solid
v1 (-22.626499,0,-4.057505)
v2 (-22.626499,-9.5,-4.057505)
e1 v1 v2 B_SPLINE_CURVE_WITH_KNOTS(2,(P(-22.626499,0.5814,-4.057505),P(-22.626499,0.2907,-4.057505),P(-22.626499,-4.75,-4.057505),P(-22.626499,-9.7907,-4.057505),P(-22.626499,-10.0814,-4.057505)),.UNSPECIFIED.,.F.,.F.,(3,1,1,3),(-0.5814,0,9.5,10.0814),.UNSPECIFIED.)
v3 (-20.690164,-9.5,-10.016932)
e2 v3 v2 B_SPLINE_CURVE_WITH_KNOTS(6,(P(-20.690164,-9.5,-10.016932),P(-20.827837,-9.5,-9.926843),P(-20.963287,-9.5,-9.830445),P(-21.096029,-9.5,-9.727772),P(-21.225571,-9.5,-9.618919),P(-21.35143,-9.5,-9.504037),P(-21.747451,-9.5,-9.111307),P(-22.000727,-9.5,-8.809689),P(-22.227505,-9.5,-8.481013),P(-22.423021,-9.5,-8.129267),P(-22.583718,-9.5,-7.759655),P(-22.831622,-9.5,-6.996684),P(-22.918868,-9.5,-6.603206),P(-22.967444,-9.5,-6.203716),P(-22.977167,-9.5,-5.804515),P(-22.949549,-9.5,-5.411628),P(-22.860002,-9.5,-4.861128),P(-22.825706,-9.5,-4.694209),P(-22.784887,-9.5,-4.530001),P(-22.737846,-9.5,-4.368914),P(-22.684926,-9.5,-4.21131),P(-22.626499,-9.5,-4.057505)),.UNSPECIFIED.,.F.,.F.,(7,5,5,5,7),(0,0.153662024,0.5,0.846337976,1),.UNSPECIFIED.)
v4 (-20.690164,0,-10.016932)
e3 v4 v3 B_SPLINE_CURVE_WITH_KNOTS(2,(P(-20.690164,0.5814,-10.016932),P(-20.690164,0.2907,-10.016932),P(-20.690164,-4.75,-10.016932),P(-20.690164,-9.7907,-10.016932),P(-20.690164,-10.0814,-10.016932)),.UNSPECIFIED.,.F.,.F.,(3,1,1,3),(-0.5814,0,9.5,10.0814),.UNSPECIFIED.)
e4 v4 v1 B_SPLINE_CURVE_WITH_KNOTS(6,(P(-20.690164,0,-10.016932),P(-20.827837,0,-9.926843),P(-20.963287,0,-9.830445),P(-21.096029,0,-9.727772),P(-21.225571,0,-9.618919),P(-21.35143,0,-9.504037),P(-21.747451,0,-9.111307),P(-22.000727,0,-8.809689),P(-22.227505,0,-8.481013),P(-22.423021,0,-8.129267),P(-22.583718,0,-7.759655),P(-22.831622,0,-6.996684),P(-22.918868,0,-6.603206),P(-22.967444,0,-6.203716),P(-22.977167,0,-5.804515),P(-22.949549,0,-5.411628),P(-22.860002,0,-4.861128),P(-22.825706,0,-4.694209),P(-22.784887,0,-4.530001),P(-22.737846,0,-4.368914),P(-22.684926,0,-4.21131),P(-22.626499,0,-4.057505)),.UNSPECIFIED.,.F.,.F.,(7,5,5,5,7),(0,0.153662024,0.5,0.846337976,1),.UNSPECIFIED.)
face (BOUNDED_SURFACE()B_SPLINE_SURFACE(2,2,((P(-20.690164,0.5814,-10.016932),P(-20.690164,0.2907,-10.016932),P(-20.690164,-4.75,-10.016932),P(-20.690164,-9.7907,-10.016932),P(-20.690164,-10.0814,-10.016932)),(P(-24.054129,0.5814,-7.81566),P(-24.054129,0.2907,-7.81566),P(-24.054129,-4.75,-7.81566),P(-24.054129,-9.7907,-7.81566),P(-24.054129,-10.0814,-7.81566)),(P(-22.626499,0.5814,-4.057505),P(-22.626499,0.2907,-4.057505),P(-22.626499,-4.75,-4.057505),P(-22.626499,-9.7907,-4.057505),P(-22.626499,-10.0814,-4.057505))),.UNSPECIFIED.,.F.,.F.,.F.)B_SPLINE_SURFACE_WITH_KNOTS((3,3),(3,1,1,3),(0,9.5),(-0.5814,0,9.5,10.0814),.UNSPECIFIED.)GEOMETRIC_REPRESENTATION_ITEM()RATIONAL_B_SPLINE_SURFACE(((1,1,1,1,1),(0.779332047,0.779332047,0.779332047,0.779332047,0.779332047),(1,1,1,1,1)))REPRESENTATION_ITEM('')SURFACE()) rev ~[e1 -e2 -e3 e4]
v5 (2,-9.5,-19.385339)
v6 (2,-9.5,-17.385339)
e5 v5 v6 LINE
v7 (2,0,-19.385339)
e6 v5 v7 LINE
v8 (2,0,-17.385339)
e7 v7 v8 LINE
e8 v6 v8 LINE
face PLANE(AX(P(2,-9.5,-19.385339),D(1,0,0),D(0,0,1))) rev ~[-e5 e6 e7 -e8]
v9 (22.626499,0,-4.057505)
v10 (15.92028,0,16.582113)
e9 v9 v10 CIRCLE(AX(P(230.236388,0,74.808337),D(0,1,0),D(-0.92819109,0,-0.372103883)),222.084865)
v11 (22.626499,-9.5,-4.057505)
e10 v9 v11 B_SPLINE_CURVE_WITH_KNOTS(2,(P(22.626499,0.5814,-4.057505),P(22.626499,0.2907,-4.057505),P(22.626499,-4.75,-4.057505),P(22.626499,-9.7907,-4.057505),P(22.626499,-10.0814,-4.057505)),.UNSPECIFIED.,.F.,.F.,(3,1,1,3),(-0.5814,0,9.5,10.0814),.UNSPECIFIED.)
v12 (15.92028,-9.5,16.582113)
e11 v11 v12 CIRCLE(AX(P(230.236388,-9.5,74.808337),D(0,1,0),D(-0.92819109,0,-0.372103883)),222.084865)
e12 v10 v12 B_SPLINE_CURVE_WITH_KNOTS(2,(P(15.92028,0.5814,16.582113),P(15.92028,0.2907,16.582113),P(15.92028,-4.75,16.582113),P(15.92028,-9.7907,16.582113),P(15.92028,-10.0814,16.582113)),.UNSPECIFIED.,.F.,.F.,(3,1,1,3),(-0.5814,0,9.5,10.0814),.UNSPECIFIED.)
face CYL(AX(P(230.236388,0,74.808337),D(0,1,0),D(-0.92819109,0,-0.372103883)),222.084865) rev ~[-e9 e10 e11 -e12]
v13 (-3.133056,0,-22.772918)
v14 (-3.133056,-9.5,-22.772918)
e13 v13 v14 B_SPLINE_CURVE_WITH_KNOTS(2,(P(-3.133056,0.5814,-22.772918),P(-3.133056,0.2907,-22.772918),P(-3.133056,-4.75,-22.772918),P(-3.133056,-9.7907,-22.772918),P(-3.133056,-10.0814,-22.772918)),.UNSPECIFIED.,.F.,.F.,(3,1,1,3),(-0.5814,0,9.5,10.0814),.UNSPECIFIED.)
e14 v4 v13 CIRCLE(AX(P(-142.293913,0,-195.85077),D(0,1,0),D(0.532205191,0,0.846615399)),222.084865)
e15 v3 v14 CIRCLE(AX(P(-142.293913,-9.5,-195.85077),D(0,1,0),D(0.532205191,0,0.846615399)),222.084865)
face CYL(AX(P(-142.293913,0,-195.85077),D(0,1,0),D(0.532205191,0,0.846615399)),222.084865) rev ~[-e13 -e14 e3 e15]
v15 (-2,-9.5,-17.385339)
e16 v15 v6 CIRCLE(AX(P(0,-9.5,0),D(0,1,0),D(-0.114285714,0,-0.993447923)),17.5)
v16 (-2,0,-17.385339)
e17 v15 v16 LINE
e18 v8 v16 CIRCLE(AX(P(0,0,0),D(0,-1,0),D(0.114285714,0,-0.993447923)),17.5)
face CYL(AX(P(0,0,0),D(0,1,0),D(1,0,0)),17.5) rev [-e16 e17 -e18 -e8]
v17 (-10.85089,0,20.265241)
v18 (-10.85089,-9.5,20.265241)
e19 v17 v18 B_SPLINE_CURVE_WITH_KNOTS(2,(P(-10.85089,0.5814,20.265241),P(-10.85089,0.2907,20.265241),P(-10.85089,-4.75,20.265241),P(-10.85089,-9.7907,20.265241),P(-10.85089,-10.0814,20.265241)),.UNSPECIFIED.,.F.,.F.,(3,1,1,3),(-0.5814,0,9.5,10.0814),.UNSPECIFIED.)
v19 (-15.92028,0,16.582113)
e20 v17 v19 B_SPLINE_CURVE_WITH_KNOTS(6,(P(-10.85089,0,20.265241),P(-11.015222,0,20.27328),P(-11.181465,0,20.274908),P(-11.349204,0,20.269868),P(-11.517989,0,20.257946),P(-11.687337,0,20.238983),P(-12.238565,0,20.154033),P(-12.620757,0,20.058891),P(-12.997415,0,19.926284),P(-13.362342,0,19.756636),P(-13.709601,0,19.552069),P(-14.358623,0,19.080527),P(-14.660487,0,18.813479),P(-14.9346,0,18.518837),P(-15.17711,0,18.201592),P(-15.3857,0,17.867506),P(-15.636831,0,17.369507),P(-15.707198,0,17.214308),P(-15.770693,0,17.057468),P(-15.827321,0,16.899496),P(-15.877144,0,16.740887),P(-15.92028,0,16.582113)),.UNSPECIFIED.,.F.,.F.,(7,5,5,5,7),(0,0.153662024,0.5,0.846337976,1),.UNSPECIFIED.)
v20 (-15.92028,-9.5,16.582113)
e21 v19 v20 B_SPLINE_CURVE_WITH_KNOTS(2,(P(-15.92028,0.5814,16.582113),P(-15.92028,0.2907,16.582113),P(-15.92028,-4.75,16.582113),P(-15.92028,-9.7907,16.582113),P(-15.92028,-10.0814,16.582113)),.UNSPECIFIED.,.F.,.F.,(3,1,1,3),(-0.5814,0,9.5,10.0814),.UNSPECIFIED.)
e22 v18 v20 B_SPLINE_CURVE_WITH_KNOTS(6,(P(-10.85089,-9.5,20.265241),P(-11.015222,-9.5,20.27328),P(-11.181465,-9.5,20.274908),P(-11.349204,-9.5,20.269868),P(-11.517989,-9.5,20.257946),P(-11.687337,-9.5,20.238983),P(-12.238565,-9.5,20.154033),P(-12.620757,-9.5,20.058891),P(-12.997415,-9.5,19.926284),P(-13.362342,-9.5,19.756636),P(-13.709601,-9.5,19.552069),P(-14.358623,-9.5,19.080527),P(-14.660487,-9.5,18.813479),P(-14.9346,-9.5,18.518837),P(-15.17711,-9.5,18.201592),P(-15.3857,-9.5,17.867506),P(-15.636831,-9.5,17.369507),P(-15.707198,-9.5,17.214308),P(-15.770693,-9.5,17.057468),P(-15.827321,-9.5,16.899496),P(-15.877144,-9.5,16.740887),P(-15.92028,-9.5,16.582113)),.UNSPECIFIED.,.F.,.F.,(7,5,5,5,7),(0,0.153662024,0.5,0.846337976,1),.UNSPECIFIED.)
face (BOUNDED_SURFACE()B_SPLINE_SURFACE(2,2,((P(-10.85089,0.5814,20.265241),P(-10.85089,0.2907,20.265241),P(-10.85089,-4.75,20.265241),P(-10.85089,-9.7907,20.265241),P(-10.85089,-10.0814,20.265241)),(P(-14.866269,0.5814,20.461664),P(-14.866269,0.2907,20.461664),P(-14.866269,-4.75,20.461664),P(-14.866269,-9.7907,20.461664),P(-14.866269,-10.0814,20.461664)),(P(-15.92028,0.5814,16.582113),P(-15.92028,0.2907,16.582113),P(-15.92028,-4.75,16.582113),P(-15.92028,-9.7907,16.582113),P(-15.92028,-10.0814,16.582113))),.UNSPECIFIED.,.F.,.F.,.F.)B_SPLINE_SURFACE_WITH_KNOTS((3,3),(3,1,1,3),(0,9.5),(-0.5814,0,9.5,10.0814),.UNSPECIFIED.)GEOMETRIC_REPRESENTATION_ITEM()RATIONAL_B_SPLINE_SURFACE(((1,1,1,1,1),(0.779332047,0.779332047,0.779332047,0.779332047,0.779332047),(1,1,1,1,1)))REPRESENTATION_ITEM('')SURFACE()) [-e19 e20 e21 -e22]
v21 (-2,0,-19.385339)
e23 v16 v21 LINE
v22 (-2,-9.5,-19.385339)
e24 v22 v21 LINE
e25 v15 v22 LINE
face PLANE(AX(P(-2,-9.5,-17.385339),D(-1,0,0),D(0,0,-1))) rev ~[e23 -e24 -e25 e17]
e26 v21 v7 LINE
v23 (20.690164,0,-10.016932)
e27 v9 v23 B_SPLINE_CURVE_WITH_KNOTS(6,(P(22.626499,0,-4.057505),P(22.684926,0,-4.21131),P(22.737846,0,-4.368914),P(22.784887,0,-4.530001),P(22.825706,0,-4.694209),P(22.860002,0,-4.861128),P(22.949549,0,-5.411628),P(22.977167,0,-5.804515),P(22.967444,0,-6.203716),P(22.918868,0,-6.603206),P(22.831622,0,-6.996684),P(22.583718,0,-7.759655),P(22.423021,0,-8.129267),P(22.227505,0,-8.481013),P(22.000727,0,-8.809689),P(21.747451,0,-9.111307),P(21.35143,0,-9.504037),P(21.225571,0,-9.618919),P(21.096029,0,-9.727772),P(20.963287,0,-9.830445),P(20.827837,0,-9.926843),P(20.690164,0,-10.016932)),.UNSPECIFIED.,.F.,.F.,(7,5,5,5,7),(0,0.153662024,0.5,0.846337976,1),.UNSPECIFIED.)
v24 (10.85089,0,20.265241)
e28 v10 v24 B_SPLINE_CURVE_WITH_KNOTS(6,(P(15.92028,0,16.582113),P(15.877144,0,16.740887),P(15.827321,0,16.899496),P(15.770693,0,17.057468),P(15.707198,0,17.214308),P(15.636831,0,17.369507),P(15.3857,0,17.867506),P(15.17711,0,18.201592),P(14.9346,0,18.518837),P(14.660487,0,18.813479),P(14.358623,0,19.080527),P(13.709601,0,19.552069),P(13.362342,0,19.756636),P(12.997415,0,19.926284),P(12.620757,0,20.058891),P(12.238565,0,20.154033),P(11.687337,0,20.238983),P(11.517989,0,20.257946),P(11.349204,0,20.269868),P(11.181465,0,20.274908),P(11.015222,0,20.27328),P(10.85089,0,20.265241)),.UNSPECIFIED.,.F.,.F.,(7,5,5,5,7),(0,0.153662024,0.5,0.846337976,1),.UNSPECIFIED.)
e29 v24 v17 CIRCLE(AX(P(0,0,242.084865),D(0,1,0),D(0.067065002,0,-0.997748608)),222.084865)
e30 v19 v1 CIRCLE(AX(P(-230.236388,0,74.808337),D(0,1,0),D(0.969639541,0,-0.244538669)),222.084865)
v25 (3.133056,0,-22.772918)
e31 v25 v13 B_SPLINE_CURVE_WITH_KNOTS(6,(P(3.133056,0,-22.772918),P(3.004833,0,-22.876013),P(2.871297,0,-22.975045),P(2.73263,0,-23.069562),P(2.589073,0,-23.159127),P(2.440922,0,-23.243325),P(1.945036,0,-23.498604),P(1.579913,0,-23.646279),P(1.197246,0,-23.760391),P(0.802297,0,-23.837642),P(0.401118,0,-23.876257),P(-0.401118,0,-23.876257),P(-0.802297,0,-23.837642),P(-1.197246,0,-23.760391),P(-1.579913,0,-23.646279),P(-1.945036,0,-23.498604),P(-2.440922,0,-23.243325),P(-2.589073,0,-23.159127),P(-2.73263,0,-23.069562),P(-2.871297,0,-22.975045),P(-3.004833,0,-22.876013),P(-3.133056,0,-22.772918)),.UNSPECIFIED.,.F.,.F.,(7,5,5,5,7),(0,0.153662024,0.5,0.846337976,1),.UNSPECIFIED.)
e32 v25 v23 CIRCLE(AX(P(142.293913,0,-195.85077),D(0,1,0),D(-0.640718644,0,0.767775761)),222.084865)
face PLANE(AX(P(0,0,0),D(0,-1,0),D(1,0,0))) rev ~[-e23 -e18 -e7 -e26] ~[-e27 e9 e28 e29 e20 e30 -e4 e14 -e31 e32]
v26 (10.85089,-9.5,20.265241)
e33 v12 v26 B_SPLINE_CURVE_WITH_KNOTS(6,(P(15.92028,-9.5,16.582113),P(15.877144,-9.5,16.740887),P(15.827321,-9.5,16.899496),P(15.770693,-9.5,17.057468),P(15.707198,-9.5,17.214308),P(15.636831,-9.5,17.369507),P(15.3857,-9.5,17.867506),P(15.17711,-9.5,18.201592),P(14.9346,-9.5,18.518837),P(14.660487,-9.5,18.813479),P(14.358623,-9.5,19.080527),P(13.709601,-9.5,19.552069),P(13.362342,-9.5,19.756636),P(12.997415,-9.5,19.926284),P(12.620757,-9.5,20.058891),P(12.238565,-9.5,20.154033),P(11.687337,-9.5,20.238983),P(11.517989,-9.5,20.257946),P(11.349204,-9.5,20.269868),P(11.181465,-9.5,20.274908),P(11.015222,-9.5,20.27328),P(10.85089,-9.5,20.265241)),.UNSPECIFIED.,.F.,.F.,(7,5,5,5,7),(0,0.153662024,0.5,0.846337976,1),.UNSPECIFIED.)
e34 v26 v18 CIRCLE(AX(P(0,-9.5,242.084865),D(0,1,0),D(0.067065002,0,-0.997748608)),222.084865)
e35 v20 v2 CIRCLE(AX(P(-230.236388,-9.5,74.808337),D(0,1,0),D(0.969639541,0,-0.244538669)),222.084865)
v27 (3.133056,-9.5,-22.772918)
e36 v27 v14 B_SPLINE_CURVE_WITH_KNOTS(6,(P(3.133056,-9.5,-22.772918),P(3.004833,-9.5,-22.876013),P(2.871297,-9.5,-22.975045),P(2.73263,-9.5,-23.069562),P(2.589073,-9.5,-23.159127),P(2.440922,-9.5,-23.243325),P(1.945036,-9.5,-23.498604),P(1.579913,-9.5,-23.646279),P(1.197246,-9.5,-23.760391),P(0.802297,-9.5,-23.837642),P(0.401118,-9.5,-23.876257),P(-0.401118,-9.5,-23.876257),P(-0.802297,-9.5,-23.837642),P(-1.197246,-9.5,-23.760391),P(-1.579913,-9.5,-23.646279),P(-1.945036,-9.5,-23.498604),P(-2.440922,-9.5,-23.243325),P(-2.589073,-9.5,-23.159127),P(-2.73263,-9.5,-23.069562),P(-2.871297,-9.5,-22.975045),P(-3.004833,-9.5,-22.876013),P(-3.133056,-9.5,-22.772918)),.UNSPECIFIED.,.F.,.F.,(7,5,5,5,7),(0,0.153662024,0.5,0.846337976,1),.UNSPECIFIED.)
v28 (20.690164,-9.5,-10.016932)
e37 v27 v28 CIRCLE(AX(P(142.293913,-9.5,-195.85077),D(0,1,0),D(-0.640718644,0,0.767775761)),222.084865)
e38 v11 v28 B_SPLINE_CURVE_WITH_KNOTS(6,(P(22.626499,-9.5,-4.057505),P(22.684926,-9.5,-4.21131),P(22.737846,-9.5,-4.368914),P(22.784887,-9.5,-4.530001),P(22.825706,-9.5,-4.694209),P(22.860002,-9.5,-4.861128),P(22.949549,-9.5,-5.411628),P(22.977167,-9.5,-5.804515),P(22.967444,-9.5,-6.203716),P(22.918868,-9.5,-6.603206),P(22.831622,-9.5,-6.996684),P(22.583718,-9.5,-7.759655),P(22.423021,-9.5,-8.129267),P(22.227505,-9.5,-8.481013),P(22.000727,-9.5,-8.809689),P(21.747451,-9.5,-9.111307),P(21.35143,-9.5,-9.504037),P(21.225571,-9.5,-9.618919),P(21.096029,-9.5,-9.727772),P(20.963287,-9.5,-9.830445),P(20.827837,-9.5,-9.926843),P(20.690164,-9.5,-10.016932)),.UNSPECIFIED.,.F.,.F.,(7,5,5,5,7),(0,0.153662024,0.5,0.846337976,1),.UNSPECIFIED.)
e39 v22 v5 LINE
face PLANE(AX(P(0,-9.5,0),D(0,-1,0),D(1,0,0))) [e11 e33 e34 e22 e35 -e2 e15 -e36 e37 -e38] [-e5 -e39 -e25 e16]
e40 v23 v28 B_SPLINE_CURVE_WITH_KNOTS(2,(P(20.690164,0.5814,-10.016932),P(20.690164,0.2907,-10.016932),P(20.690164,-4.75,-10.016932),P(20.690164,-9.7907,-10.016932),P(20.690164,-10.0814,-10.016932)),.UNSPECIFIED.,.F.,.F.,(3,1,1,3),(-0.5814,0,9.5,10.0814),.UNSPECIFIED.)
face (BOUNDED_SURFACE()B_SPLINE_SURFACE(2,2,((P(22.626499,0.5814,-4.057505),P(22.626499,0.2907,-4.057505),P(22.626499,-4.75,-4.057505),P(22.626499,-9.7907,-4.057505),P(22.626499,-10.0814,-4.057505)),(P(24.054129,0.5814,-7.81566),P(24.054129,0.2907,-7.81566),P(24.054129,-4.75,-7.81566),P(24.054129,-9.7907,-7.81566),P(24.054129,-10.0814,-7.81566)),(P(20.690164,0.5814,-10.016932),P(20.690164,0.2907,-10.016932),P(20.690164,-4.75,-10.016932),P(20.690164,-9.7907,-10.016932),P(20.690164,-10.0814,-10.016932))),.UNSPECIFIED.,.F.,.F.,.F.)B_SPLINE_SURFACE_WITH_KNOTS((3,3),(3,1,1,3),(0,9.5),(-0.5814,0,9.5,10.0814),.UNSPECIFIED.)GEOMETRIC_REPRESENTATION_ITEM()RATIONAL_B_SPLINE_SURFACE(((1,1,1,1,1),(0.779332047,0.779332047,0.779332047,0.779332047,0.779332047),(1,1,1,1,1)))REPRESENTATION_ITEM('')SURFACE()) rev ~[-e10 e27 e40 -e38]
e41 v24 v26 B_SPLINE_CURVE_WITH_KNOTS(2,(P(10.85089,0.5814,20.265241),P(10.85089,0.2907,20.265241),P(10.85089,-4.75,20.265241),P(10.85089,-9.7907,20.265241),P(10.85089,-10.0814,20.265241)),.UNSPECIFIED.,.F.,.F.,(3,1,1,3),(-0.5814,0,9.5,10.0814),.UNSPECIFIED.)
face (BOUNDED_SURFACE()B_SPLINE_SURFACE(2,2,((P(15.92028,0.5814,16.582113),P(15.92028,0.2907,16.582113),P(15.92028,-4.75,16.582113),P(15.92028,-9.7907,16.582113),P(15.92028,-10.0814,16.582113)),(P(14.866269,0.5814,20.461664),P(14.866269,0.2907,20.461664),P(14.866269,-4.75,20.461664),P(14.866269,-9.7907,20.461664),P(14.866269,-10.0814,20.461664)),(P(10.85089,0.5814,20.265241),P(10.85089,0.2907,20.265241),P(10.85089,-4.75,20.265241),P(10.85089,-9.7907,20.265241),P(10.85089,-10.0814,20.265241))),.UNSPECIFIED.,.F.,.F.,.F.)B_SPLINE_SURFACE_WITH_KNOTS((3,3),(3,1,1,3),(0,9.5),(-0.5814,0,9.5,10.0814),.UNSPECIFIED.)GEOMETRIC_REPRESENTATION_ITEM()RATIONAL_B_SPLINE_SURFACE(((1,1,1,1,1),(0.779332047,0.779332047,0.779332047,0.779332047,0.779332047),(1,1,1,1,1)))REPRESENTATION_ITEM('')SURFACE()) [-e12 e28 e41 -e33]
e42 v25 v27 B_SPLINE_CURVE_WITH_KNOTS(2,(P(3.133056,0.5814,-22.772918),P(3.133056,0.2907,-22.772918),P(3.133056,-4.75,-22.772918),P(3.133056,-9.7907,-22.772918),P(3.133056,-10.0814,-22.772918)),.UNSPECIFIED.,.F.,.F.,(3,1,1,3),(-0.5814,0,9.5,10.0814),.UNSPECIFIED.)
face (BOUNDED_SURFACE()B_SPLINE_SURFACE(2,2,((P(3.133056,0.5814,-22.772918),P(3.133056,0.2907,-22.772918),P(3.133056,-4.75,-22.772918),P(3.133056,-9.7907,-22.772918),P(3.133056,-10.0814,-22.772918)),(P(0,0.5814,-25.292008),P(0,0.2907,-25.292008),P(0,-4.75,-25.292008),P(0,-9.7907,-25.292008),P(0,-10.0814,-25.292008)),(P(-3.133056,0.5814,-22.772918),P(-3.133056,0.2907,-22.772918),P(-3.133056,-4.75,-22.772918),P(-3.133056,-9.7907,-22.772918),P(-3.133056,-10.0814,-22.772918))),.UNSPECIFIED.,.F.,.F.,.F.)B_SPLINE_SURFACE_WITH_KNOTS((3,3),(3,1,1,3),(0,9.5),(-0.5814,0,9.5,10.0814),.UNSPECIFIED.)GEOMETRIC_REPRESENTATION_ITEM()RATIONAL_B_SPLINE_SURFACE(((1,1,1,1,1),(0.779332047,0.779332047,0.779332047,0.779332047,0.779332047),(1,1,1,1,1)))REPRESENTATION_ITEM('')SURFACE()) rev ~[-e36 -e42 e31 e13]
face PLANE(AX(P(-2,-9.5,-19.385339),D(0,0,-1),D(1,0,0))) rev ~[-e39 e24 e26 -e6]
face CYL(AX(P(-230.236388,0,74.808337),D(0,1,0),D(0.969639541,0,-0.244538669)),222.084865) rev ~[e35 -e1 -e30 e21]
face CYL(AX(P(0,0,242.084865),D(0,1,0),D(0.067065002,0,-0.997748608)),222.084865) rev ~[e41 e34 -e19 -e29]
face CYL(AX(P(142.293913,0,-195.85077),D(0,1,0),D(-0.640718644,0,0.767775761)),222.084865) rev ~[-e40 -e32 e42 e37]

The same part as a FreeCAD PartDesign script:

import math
import FreeCAD as App
import Part
import Sketcher
from FreeCAD import Vector
Q = App.Units.Quantity


def edges_at(feature, points):
    """Names of the edges that pass closest to the given points."""
    edges = feature.Shape.Edges
    near = lambda p: min(range(len(edges)), key=lambda i: edges[i].distToShape(Part.Vertex(*p))[0])
    return sorted({f"Edge{near(p) + 1}" for p in points})


def add_polygon(sketch, points):
    """Adds a closed chain of lines whose ends are joined by coincident constraints."""
    first, n = sketch.GeometryCount, len(points)
    for a, b in zip(points, points[1:] + points[:1]):
        sketch.addGeometry(Part.LineSegment(App.Vector(*a, 0), App.Vector(*b, 0)), False)
    for i in range(n):
        sketch.addConstraint(Sketcher.Constraint("Coincident", first + i, 2, first + (i + 1) % n, 1))

doc = App.newDocument("Part")
body = doc.addObject("PartDesign::Body", "Body")

# Sketch on XZ plane
sketch1 = body.newObject("Sketcher::SketchObject", "Sketch")
sketch1.AttachmentSupport = (doc.getObject("XZ_Plane"), [""])
sketch1.MapMode = "FlatFace"
sketch1.addGeometry(Part.ArcOfCircle(Part.Circle(Vector(230, 75, 0), Vector(0, 0, 1), 222), math.radians(-165.85), math.radians(-158.15)), False)
sketch1.addGeometry(Part.ArcOfCircle(Part.Circle(Vector(0, 242, 0), Vector(0, 0, 1), 222), math.radians(-93.85), math.radians(-86.15)), False)
sketch1.addGeometry(Part.ArcOfCircle(Part.Circle(Vector(-230, 75, 0), Vector(0, 0, 1), 222), math.radians(-21.85), math.radians(-14.15)), False)
sketch1.addGeometry(Part.ArcOfCircle(Part.Circle(Vector(-142, -196, 0), Vector(0, 0, 1), 222), math.radians(50.15), math.radians(57.85)), False)
sketch1.addGeometry(Part.ArcOfCircle(Part.Circle(Vector(142, -196, 0), Vector(0, 0, 1), 222), math.radians(122.15), math.radians(129.85)), False)
sketch1.addGeometry(Part.Circle(Vector(0, 0, 0), Vector(0, 0, 1), 18), False)
sketch1.addConstraint(Sketcher.Constraint("Coincident", 0, 1, 1, 2))
sketch1.addConstraint(Sketcher.Constraint("Coincident", 1, 1, 2, 2))
sketch1.addConstraint(Sketcher.Constraint("Coincident", 2, 1, 3, 2))
sketch1.addConstraint(Sketcher.Constraint("Coincident", 3, 1, 4, 2))
sketch1.addConstraint(Sketcher.Constraint("Coincident", 4, 1, 0, 2))
sketch1.addConstraint(Sketcher.Constraint("Coincident", 5, 3, -1, 1))
sketch1.addConstraint(Sketcher.Constraint("Equal", 0, 1))
sketch1.addConstraint(Sketcher.Constraint("Equal", 1, 2))
sketch1.addConstraint(Sketcher.Constraint("Equal", 2, 3))
sketch1.addConstraint(Sketcher.Constraint("Equal", 3, 4))
sketch1.addConstraint(Sketcher.Constraint("Symmetric", 0, 3, 2, 3, -2))
sketch1.addConstraint(Sketcher.Constraint("Symmetric", 3, 3, 4, 3, -2))
sketch1.addConstraint(Sketcher.Constraint("PointOnObject", 1, 3, -2))
sketch1.addConstraint(Sketcher.Constraint("Diameter", 5, Q("35 mm")))
sketch1.addConstraint(Sketcher.Constraint("DistanceY", -1, 1, 0, 1, Q("20.5 mm")))
sketch1.addConstraint(Sketcher.Constraint("Radius", 0, Q("222.084865 mm")))
sketch1.addConstraint(Sketcher.Constraint("DistanceX", 3, 3, 0, 3, Q("372.530302 mm")))
sketch1.addConstraint(Sketcher.Constraint("DistanceX", -1, 1, 0, 3, Q("230.236388 mm")))
sketch1.addConstraint(Sketcher.Constraint("DistanceY", 3, 3, -1, 1, Q("195.85077 mm")))
sketch1.addConstraint(Sketcher.Constraint("DistanceX", -1, 1, 0, 1, Q("14.894122 mm")))
pad1 = body.newObject("PartDesign::Pad", "Pad")
pad1.Profile = sketch1
pad1.Length = 9.5
doc.recompute()

fillet = body.newObject("PartDesign::Fillet", "Fillet")
fillet.Base = (pad1, edges_at(pad1, [
    (0, -4.75, -25.339),
    (-24.099, -4.75, -7.83),
    (-14.894, -4.75, 20.5),
    (14.894, -4.75, 20.5),
    (24.099, -4.75, -7.83),
]))
fillet.Radius = 5

# Sketch on XZ plane
sketch2 = body.newObject("Sketcher::SketchObject", "Sketch001")
sketch2.AttachmentSupport = (doc.getObject("XZ_Plane"), [""])
sketch2.MapMode = "FlatFace"
sketch2.AttachmentOffset = App.Placement(Vector(0, 0, 9.5), App.Rotation())
add_polygon(sketch2, [(2, -19.4), (2, -17.4), (-2, -17.4), (-2, -19.4)])  # lines 0-3
sketch2.addConstraint(Sketcher.Constraint("Vertical", 0))
sketch2.addConstraint(Sketcher.Constraint("Horizontal", 1))
sketch2.addConstraint(Sketcher.Constraint("Vertical", 2))
sketch2.addConstraint(Sketcher.Constraint("Horizontal", 3))
sketch2.addConstraint(Sketcher.Constraint("DistanceX", 1, 2, 1, 1, Q("4 mm")))
sketch2.addConstraint(Sketcher.Constraint("DistanceY", 0, 1, 0, 2, Q("2 mm")))
sketch2.addConstraint(Sketcher.Constraint("DistanceX", -1, 1, 0, 2, Q("2 mm")))
sketch2.addConstraint(Sketcher.Constraint("DistanceY", 0, 2, -1, 1, Q("17.385339 mm")))
pocket1 = body.newObject("PartDesign::Pocket", "Pocket")
pocket1.Profile = sketch2
pocket1.Type = "ThroughAll"

doc.recompute()
